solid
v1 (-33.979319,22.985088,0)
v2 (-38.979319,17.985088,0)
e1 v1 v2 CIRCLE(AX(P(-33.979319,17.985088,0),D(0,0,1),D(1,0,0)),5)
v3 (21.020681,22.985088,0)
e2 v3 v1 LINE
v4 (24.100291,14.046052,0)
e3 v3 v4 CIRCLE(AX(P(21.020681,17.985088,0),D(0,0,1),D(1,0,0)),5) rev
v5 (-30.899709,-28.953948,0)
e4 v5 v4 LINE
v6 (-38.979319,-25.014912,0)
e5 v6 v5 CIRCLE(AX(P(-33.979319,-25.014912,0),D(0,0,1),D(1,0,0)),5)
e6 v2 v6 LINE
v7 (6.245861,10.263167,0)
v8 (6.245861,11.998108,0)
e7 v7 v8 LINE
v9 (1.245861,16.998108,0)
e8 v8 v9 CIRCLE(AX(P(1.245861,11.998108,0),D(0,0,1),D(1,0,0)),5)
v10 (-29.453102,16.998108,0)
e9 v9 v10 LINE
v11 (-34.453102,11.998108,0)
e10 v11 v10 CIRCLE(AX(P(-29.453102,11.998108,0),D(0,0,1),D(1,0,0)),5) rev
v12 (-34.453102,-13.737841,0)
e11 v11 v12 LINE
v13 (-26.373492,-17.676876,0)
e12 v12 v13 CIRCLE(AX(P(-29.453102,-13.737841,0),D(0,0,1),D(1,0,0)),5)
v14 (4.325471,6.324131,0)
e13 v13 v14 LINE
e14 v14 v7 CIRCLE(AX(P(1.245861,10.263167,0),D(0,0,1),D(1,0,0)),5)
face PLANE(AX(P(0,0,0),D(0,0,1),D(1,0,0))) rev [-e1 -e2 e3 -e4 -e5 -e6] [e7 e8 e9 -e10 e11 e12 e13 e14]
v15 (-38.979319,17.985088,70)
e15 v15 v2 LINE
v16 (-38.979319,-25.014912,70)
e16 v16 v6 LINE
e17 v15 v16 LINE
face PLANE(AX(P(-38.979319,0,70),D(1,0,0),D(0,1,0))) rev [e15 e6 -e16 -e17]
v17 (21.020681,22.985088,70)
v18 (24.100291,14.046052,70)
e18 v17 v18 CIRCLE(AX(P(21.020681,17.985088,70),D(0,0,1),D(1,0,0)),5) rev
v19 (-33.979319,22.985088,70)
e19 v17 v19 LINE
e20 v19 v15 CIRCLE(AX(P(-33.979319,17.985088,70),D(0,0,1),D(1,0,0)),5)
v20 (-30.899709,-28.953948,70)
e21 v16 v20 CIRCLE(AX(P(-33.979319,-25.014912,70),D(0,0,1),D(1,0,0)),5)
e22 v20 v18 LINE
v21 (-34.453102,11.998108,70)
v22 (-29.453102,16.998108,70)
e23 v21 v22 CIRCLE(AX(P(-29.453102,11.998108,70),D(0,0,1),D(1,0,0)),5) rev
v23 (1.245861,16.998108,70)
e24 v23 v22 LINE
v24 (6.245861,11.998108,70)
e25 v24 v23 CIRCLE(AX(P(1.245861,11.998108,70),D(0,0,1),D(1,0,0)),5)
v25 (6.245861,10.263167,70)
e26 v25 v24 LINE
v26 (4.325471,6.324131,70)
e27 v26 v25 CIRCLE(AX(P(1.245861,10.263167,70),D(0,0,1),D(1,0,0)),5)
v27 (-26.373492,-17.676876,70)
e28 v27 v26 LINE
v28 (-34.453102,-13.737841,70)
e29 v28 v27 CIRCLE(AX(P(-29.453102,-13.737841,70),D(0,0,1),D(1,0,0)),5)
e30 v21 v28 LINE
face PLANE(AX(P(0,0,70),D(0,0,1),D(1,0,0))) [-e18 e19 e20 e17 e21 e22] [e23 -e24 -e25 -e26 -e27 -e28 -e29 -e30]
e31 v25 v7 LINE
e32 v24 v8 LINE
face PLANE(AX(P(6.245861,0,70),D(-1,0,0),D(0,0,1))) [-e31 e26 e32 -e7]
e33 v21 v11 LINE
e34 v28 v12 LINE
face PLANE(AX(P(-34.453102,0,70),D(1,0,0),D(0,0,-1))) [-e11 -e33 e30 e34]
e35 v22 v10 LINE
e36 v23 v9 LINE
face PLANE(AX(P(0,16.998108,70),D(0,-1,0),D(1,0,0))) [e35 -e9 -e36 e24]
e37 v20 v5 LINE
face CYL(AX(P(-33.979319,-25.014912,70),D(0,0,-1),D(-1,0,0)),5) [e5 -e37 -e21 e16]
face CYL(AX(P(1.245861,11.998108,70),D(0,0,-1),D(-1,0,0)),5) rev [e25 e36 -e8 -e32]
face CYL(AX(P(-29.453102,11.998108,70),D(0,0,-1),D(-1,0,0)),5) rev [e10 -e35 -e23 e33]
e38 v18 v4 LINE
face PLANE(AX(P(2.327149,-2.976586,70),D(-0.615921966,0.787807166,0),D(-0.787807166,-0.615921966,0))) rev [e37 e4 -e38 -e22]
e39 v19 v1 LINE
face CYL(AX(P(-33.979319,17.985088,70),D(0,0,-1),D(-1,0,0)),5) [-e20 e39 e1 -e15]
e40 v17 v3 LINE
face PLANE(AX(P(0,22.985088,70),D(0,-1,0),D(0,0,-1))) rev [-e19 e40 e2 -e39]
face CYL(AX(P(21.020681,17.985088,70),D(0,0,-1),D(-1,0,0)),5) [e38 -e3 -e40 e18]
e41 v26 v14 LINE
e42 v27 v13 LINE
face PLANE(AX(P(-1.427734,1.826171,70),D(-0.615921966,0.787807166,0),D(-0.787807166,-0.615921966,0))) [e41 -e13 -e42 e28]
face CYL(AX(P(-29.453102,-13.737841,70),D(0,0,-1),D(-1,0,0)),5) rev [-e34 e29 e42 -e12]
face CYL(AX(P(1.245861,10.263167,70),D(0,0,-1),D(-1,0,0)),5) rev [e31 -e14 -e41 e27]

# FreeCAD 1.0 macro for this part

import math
import FreeCAD as App
import Part
import Sketcher
from FreeCAD import Vector
Q = App.Units.Quantity

doc = App.newDocument("Part")
body = doc.addObject("PartDesign::Body", "Body")

sketch1 = body.newObject("Sketcher::SketchObject", "Sketch")
sketch1.AttachmentSupport = (doc.getObject("XY_Plane"), [""])
sketch1.MapMode = "FlatFace"
sketch1.addGeometry([
    Part.ArcOfCircle(Part.Circle(Vector(21, 18, 0), Vector(0, 0, 1), 5), math.radians(-52), math.radians(90)),
    Part.LineSegment(Vector(21, 23, 0), Vector(-34, 23, 0)),
    Part.ArcOfCircle(Part.Circle(Vector(-34, 18, 0), Vector(0, 0, 1), 5), math.radians(90), math.radians(180)),
    Part.LineSegment(Vector(-39, 18, 0), Vector(-39, -25, 0)),
    Part.ArcOfCircle(Part.Circle(Vector(-34, -25, 0), Vector(0, 0, 1), 5), math.radians(180), math.radians(308)),
    Part.LineSegment(Vector(-30.9, -29, 0), Vector(24.1, 14, 0)),
    Part.LineSegment(Vector(6.2, 12, 0), Vector(6.2, 10.3, 0)),
    Part.ArcOfCircle(Part.Circle(Vector(1.2, 10.3, 0), Vector(0, 0, 1), 5), math.radians(-52), math.radians(0)),
    Part.LineSegment(Vector(4.3, 6.3, 0), Vector(-26.4, -17.7, 0)),
    Part.ArcOfCircle(Part.Circle(Vector(-29.5, -13.7, 0), Vector(0, 0, 1), 5), math.radians(180), math.radians(308)),
    Part.LineSegment(Vector(-34.5, -13.7, 0), Vector(-34.5, 12, 0)),
    Part.ArcOfCircle(Part.Circle(Vector(-29.5, 12, 0), Vector(0, 0, 1), 5), math.radians(90), math.radians(180)),
    Part.LineSegment(Vector(-29.5, 17, 0), Vector(1.2, 17, 0)),
    Part.ArcOfCircle(Part.Circle(Vector(1.2, 12, 0), Vector(0, 0, 1), 5), math.radians(0), math.radians(90)),
], False)
sketch1.addConstraint([
    Sketcher.Constraint("Tangent", 0, 2, 1, 1),
    Sketcher.Constraint("Tangent", 1, 2, 2, 1),
    Sketcher.Constraint("Tangent", 2, 2, 3, 1),
    Sketcher.Constraint("Tangent", 3, 2, 4, 1),
    Sketcher.Constraint("Tangent", 4, 2, 5, 1),
    Sketcher.Constraint("Tangent", 5, 2, 0, 1),
    Sketcher.Constraint("Tangent", 6, 2, 7, 2),
    Sketcher.Constraint("Tangent", 7, 1, 8, 1),
    Sketcher.Constraint("Tangent", 8, 2, 9, 2),
    Sketcher.Constraint("Tangent", 9, 1, 10, 1),
    Sketcher.Constraint("Tangent", 10, 2, 11, 2),
    Sketcher.Constraint("Tangent", 11, 1, 12, 1),
    Sketcher.Constraint("Tangent", 12, 2, 13, 2),
    Sketcher.Constraint("Tangent", 13, 1, 6, 1),
    Sketcher.Constraint("Horizontal", 1),
    Sketcher.Constraint("Vertical", 3),
    Sketcher.Constraint("Vertical", 6),
    Sketcher.Constraint("Vertical", 10),
    Sketcher.Constraint("Horizontal", 12),
    Sketcher.Constraint("Equal", 0, 2),
    Sketcher.Constraint("Equal", 2, 4),
    Sketcher.Constraint("Equal", 4, 7),
    Sketcher.Constraint("Equal", 7, 9),
    Sketcher.Constraint("Equal", 9, 11),
    Sketcher.Constraint("Equal", 11, 13),
    Sketcher.Constraint("Parallel", 5, 8),
    Sketcher.Constraint("Radius", 0, Q("5 mm")),
    Sketcher.Constraint("DistanceX", 1, 2, 1, 1, Q("55 mm")),
    Sketcher.Constraint("DistanceY", 3, 2, 3, 1, Q("43 mm")),
    Sketcher.Constraint("DistanceY", 6, 2, 6, 1, Q("1.734941 mm")),
    Sketcher.Constraint("DistanceY", 10, 1, 10, 2, Q("25.735948 mm")),
    Sketcher.Constraint("DistanceX", 9, 3, -1, 1, Q("29.453102 mm")),
    Sketcher.Constraint("DistanceX", -1, 1, 0, 3, Q("21.020681 mm")),
    Sketcher.Constraint("DistanceY", 9, 3, -1, 1, Q("13.737841 mm")),
    Sketcher.Constraint("DistanceY", 4, 2, -1, 1, Q("28.953948 mm")),
])
pad1 = body.newObject("PartDesign::Pad", "Pad")
pad1.Profile = sketch1
pad1.Length = 70

doc.recompute()
